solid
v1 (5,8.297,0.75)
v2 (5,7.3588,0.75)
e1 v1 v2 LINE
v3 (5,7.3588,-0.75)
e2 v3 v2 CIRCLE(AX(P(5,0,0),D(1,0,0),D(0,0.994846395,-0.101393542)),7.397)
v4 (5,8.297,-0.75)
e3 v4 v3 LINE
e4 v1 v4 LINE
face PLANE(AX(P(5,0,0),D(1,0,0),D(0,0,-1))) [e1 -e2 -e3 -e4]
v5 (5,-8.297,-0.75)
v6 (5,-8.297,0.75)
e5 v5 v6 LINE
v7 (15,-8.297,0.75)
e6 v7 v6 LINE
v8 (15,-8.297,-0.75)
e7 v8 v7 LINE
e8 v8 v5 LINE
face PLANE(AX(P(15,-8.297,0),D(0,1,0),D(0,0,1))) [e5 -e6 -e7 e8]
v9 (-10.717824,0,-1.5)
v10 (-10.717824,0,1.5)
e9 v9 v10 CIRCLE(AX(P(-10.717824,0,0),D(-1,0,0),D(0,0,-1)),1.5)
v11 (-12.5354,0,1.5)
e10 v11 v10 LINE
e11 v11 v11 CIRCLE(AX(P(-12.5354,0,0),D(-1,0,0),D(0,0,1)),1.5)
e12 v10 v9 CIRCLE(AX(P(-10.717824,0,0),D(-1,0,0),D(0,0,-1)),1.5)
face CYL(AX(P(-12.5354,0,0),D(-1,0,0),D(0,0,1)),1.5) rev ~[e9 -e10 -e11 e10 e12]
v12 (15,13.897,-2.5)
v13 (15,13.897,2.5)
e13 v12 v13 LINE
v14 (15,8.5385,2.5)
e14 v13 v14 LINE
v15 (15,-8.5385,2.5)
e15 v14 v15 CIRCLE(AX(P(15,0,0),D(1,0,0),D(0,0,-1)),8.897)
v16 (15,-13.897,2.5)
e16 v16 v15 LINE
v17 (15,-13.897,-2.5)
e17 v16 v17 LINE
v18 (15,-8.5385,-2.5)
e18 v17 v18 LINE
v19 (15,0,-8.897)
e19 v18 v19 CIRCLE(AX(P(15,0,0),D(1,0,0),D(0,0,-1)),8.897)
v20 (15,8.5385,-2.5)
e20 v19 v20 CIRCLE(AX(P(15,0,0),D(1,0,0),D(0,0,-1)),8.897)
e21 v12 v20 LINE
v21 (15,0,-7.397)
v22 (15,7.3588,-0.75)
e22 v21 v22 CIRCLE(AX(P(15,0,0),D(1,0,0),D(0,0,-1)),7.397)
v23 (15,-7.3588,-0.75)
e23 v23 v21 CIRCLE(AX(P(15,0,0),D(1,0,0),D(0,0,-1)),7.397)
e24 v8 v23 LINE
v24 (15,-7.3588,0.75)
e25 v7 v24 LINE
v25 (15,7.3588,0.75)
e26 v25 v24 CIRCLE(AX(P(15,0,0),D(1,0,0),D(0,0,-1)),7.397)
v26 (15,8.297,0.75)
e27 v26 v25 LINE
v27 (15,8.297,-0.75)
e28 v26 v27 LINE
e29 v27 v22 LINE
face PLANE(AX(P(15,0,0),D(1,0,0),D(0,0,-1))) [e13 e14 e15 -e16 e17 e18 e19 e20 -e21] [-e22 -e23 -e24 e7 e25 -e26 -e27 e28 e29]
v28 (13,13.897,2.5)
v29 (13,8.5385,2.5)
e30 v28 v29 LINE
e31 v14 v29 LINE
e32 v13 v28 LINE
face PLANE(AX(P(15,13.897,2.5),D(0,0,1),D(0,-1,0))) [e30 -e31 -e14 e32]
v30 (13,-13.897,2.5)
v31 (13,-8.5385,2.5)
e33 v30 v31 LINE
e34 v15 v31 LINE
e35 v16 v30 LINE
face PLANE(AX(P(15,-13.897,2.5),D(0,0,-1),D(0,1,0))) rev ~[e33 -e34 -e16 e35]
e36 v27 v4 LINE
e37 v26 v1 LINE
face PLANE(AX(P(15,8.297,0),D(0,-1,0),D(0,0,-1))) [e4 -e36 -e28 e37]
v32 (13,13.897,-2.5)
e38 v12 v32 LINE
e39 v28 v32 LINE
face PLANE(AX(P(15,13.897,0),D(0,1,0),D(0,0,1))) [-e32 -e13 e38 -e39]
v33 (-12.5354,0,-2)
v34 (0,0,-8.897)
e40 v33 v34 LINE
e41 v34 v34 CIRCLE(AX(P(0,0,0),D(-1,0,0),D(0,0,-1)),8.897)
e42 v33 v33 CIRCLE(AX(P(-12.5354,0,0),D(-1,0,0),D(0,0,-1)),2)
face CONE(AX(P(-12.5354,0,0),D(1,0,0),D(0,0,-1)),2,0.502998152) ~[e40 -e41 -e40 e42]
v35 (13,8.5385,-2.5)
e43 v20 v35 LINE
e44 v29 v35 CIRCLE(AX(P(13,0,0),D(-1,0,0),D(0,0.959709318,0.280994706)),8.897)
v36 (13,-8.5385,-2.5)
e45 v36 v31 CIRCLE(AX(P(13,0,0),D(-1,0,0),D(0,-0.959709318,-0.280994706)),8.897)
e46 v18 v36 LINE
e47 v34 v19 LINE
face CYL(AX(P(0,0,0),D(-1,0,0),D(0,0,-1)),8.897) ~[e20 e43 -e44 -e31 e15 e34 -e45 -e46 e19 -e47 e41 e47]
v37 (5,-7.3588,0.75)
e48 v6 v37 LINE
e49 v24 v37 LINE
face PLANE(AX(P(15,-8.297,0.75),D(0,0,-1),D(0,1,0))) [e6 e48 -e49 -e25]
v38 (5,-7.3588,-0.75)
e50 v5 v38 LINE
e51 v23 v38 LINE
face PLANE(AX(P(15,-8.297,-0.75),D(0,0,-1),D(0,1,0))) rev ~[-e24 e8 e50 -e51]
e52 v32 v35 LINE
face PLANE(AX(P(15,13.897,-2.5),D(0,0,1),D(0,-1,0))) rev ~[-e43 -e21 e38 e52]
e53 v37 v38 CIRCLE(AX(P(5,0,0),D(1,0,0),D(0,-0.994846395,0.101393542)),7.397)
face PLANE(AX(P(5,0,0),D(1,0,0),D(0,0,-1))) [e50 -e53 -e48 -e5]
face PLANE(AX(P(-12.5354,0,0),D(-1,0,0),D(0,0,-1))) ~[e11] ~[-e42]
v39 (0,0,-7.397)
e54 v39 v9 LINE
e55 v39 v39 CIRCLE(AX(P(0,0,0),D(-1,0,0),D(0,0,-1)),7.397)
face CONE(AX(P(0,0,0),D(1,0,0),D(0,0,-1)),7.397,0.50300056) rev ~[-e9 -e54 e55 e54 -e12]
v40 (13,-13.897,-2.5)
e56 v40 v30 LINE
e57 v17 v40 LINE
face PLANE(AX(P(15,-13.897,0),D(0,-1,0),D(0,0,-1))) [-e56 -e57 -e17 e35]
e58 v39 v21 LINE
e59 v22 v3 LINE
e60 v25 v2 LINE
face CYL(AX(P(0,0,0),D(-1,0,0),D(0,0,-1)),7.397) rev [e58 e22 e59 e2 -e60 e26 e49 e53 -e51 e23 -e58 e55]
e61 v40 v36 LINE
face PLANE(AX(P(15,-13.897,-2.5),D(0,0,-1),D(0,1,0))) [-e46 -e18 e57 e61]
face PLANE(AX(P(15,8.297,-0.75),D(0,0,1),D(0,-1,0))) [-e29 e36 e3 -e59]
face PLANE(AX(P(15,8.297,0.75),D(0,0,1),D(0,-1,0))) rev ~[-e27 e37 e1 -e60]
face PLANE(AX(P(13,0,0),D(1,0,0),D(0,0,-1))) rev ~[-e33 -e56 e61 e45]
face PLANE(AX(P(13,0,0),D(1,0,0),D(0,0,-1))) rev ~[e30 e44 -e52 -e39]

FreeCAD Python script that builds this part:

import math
import FreeCAD as App
import Part
import Sketcher
Q = App.Units.Quantity

doc = App.newDocument("Part")
body = doc.addObject("PartDesign::Body", "Body")

# Sketch on XZ plane
sketch1 = body.newObject("Sketcher::SketchObject", "Sketch")
sketch1.AttachmentSupport = (doc.getObject("XZ_Plane"), [""])
sketch1.MapMode = "FlatFace"
sketch1.addGeometry([
    Part.LineSegment(App.Vector(-12.5, 0, 0), App.Vector(-10.9, 0, 0)),  # 0
    Part.LineSegment(App.Vector(-10.9, 0, 0), App.Vector(-10.9, -1.4, 0)),  # 1
    Part.LineSegment(App.Vector(-10.9, -1.4, 0), App.Vector(0, -7.4, 0)),  # 2
    Part.LineSegment(App.Vector(0, -7.4, 0), App.Vector(0, -8.9, 0)),  # 3
    Part.LineSegment(App.Vector(0, -8.9, 0), App.Vector(-12.5, -2, 0)),  # 4
    Part.LineSegment(App.Vector(-12.5, -2, 0), App.Vector(-12.5, 0, 0)),  # 5
], False)
sketch1.addConstraint([
    Sketcher.Constraint("Coincident", 0, 2, 1, 1),
    Sketcher.Constraint("Coincident", 1, 2, 2, 1),
    Sketcher.Constraint("Coincident", 2, 2, 3, 1),
    Sketcher.Constraint("Coincident", 3, 2, 4, 1),
    Sketcher.Constraint("Coincident", 4, 2, 5, 1),
    Sketcher.Constraint("Coincident", 5, 2, 0, 1),
    Sketcher.Constraint("Horizontal", 0),
    Sketcher.Constraint("Vertical", 1),
    Sketcher.Constraint("Vertical", 3),
    Sketcher.Constraint("Vertical", 5),
    Sketcher.Constraint("PointOnObject", 0, 2, -1),
    Sketcher.Constraint("PointOnObject", 2, 2, -2),
    Sketcher.Constraint("Parallel", 2, 4),
    Sketcher.Constraint("DistanceY", 5, 1, 5, 2, 2.0),
    Sketcher.Constraint("DistanceY", 3, 2, 3, 1, 1.5),
    Sketcher.Constraint("Angle", 2, Q("-28.8198 deg")),
    Sketcher.Constraint("DistanceX", 0, 1, 0, 2, 1.631),
    Sketcher.Constraint("DistanceY", 2, 2, -1, 1, 7.397),
])
revolution = body.newObject("PartDesign::Revolution", "Revolution")
revolution.Profile = sketch1
revolution.ReferenceAxis = (sketch1, ["H_Axis"])
revolution.Angle = 360

# Sketch on YZ plane
sketch2 = body.newObject("Sketcher::SketchObject", "Sketch001")
sketch2.AttachmentSupport = (doc.getObject("YZ_Plane"), [""])
sketch2.MapMode = "FlatFace"
sketch2.AttachmentOffset = App.Placement(App.Vector(0, 0, -12.5354), App.Rotation())
sketch2.addGeometry(Part.Circle(App.Vector(0, 0, 0), App.Vector(0, 0, 1), 1.5), False)
sketch2.addConstraint([
    Sketcher.Constraint("Coincident", 0, 3, -1, 1),
    Sketcher.Constraint("Diameter", 0, 3.0),
])
pocket1 = body.newObject("PartDesign::Pocket", "Pocket")
pocket1.Profile = sketch2
pocket1.Length = 10
pocket1.Reversed = True

# Sketch on YZ plane
sketch3 = body.newObject("Sketcher::SketchObject", "Sketch002")
sketch3.AttachmentSupport = (doc.getObject("YZ_Plane"), [""])
sketch3.MapMode = "FlatFace"
sketch3.addGeometry([
    Part.Circle(App.Vector(0, 0, 0), App.Vector(0, 0, 1), 9),
    Part.Circle(App.Vector(0, 0, 0), App.Vector(0, 0, 1), 7),
], False)
sketch3.addConstraint([
    Sketcher.Constraint("Coincident", 0, 3, -1, 1),
    Sketcher.Constraint("Coincident", 1, 3, -1, 1),
    Sketcher.Constraint("Diameter", 0, 17.794),
    Sketcher.Constraint("Diameter", 1, 14.794),
])
pad1 = body.newObject("PartDesign::Pad", "Pad")
pad1.Profile = sketch3
pad1.Length = 15

# Sketch on YZ plane
sketch4 = body.newObject("Sketcher::SketchObject", "Sketch003")
sketch4.AttachmentSupport = (doc.getObject("YZ_Plane"), [""])
sketch4.MapMode = "FlatFace"
sketch4.AttachmentOffset = App.Placement(App.Vector(0, 0, 15), App.Rotation())
sketch4.addGeometry([
    Part.LineSegment(App.Vector(9, -2, 0), App.Vector(14, -2, 0)),  # 0
    Part.LineSegment(App.Vector(14, -2, 0), App.Vector(14, 2, 0)),  # 1
    Part.LineSegment(App.Vector(14, 2, 0), App.Vector(9, 2, 0)),  # 2
    Part.ArcOfCircle(Part.Circle(App.Vector(0, 0, 0), App.Vector(0, 0, 1), 9), math.radians(-16), math.radians(16)),  # 3
    Part.LineSegment(App.Vector(-14, -2, 0), App.Vector(-9, -2, 0)),  # 4
    Part.ArcOfCircle(Part.Circle(App.Vector(0, 0, 0), App.Vector(0, 0, 1), 9), math.radians(164), math.radians(196)),  # 5
    Part.LineSegment(App.Vector(-9, 2, 0), App.Vector(-14, 2, 0)),  # 6
    Part.LineSegment(App.Vector(-14, 2, 0), App.Vector(-14, -2, 0)),  # 7
], False)
sketch4.addConstraint([
    Sketcher.Constraint("Coincident", 0, 2, 1, 1),
    Sketcher.Constraint("Coincident", 1, 2, 2, 1),
    Sketcher.Constraint("Coincident", 2, 2, 3, 2),
    Sketcher.Constraint("Coincident", 3, 1, 0, 1),
    Sketcher.Constraint("Coincident", 4, 2, 5, 2),
    Sketcher.Constraint("Coincident", 5, 1, 6, 1),
    Sketcher.Constraint("Coincident", 6, 2, 7, 1),
    Sketcher.Constraint("Coincident", 7, 2, 4, 1),
    Sketcher.Constraint("Horizontal", 0),
    Sketcher.Constraint("Vertical", 1),
    Sketcher.Constraint("Horizontal", 2),
    Sketcher.Constraint("Horizontal", 4),
    Sketcher.Constraint("Horizontal", 6),
    Sketcher.Constraint("Vertical", 7),
    Sketcher.Constraint("Coincident", 3, 3, -1, 1),
    Sketcher.Constraint("Coincident", 5, 3, -1, 1),
    Sketcher.Constraint("Equal", 3, 5),
    Sketcher.Constraint("Symmetric", 0, 2, 6, 2, -1, 1),
    Sketcher.Constraint("Horizontal", 3, 1, 4, 2),
    Sketcher.Constraint("Horizontal", 2, 2, 5, 1),
    Sketcher.Constraint("DistanceY", 1, 1, 1, 2, 5.0),
    Sketcher.Constraint("Radius", 3, 8.897),
    Sketcher.Constraint("DistanceX", 0, 1, 0, 2, 5.3585),
])
pad2 = body.newObject("PartDesign::Pad", "Pad001")
pad2.Profile = sketch4
pad2.Length = 2
pad2.Reversed = True

# Sketch on YZ plane
sketch5 = body.newObject("Sketcher::SketchObject", "Sketch004")
sketch5.AttachmentSupport = (doc.getObject("YZ_Plane"), [""])
sketch5.MapMode = "FlatFace"
sketch5.AttachmentOffset = App.Placement(App.Vector(0, 0, 15), App.Rotation())
sketch5.addGeometry([
    Part.LineSegment(App.Vector(7.4, -0.8, 0), App.Vector(8.3, -0.8, 0)),  # 0
    Part.LineSegment(App.Vector(8.3, -0.8, 0), App.Vector(8.3, 0.8, 0)),  # 1
    Part.LineSegment(App.Vector(8.3, 0.8, 0), App.Vector(7.4, 0.8, 0)),  # 2
    Part.ArcOfCircle(Part.Circle(App.Vector(0, 0, 0), App.Vector(0, 0, 1), 7.4), math.radians(-5.82), math.radians(5.82)),  # 3
    Part.LineSegment(App.Vector(-8.3, -0.8, 0), App.Vector(-7.4, -0.8, 0)),  # 4
    Part.ArcOfCircle(Part.Circle(App.Vector(0, 0, 0), App.Vector(0, 0, 1), 7.4), math.radians(174.18), math.radians(185.82)),  # 5
    Part.LineSegment(App.Vector(-7.4, 0.8, 0), App.Vector(-8.3, 0.8, 0)),  # 6
    Part.LineSegment(App.Vector(-8.3, 0.8, 0), App.Vector(-8.3, -0.8, 0)),  # 7
], False)
sketch5.addConstraint([
    Sketcher.Constraint("Coincident", 0, 2, 1, 1),
    Sketcher.Constraint("Coincident", 1, 2, 2, 1),
    Sketcher.Constraint("Coincident", 2, 2, 3, 2),
    Sketcher.Constraint("Coincident", 3, 1, 0, 1),
    Sketcher.Constraint("Coincident", 4, 2, 5, 2),
    Sketcher.Constraint("Coincident", 5, 1, 6, 1),
    Sketcher.Constraint("Coincident", 6, 2, 7, 1),
    Sketcher.Constraint("Coincident", 7, 2, 4, 1),
    Sketcher.Constraint("Horizontal", 0),
    Sketcher.Constraint("Vertical", 1),
    Sketcher.Constraint("Horizontal", 2),
    Sketcher.Constraint("Horizontal", 4),
    Sketcher.Constraint("Horizontal", 6),
    Sketcher.Constraint("Vertical", 7),
    Sketcher.Constraint("Coincident", 3, 3, -1, 1),
    Sketcher.Constraint("Coincident", 5, 3, -1, 1),
    Sketcher.Constraint("Equal", 3, 5),
    Sketcher.Constraint("Symmetric", 0, 2, 6, 2, -1, 1),
    Sketcher.Constraint("Horizontal", 3, 1, 4, 2),
    Sketcher.Constraint("Horizontal", 2, 2, 5, 1),
    Sketcher.Constraint("DistanceY", 0, 2, -1, 1, 0.75),
    Sketcher.Constraint("Radius", 3, 7.397),
    Sketcher.Constraint("DistanceX", 0, 1, 0, 2, 0.9382),
])
pocket2 = body.newObject("PartDesign::Pocket", "Pocket001")
pocket2.Profile = sketch5
pocket2.Length = 10

doc.recompute()
